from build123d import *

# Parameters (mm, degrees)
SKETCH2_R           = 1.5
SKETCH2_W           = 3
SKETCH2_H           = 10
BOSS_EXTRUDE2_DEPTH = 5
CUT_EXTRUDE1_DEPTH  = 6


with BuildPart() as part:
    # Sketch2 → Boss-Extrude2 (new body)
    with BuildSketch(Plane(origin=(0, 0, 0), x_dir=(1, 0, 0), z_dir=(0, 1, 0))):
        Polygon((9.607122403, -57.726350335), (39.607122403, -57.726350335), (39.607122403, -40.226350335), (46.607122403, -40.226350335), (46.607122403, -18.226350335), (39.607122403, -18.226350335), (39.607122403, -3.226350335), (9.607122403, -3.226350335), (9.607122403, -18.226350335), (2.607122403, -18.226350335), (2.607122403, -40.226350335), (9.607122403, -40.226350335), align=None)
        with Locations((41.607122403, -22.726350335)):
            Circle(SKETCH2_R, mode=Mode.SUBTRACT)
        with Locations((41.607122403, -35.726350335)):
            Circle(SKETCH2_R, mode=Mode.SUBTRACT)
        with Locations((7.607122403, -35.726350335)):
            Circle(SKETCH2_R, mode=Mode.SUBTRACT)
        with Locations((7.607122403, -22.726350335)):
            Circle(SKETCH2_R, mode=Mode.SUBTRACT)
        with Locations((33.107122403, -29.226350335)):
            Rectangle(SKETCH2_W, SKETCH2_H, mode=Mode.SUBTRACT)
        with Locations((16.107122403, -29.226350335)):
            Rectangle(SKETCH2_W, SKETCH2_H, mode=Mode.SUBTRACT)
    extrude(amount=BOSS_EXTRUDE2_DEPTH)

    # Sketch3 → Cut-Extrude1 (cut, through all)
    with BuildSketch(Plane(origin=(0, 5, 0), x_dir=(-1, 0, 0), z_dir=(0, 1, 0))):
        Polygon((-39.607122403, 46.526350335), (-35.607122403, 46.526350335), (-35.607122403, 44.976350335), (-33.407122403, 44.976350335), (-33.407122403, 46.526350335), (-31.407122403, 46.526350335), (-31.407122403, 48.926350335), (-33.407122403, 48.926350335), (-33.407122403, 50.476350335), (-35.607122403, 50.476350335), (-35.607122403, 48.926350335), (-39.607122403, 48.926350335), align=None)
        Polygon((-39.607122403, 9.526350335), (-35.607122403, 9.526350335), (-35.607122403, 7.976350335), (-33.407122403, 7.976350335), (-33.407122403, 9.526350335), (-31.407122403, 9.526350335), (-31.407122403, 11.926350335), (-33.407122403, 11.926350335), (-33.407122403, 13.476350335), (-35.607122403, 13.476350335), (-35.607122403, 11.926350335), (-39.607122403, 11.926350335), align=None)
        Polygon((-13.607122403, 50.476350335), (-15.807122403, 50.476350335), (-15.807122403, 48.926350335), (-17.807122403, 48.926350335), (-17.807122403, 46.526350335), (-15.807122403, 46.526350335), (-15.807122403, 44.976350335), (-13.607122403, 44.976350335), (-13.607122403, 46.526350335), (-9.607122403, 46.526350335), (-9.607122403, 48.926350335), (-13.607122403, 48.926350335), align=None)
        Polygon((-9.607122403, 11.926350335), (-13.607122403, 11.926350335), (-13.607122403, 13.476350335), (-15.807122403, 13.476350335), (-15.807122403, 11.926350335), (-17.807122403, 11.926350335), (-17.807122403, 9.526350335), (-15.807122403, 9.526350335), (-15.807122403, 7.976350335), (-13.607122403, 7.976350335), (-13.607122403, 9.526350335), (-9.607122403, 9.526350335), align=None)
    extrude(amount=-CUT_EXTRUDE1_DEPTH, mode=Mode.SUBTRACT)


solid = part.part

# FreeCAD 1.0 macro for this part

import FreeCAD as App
import Part
import Sketcher

V = App.Vector


def add_polygon(sketch, points):
    """Adds a closed chain of lines whose ends are joined by coincident constraints."""
    first, n = sketch.GeometryCount, len(points)
    for a, b in zip(points, points[1:] + points[:1]):
        sketch.addGeometry(Part.LineSegment(App.Vector(*a, 0), App.Vector(*b, 0)), False)
    for i in range(n):
        sketch.addConstraint(Sketcher.Constraint("Coincident", first + i, 2, first + (i + 1) % n, 1))

doc = App.newDocument("Part")
params = doc.addObject("Spreadsheet::Sheet", "Params")
for row, (alias, value) in enumerate([
    ("sketch1_diameter", "3 mm"),
    ("sketch1_width", "30 mm"),
    ("sketch1_width2", "7 mm"),
    ("sketch1_width3", "3 mm"),
    ("sketch1_height", "22 mm"),
    ("pad1_length", "5 mm"),
    ("sketch2_width", "4 mm"),
    ("sketch2_width2", "2 mm"),
    ("sketch2_width3", "2.2 mm"),
    ("sketch2_height", "2.4 mm"),
    ("sketch2_height2", "1.55 mm"),
], start=1):
    params.set(f"A{row}", alias)
    params.set(f"B{row}", "=" + value)
    params.setAlias(f"B{row}", alias)

body = doc.addObject("PartDesign::Body", "Body")

sketch1 = doc.addObject("Sketcher::SketchObject", "Sketch")
body.addObject(sketch1)
sketch1.AttachmentSupport = (doc.XZ_Plane, [""])
sketch1.MapMode = "FlatFace"
add_polygon(sketch1, [(9.607122, 57.72635), (39.607122, 57.72635), (39.607122, 40.22635), (46.607122, 40.22635), (46.607122, 18.22635), (39.607122, 18.22635), (39.607122, 3.22635), (9.607122, 3.22635), (9.607122, 18.22635), (2.607122, 18.22635), (2.607122, 40.22635), (9.607122, 40.22635)])
sketch1.addGeometry(Part.Circle(V(7.607122, 35.72635, 0), V(0, 0, 1), 1.5), False)
sketch1.addGeometry(Part.Circle(V(41.607122, 35.72635, 0), V(0, 0, 1), 1.5), False)
add_polygon(sketch1, [(17.607122, 34.22635), (14.607122, 34.22635), (14.607122, 24.22635), (17.607122, 24.22635)])
sketch1.addGeometry(Part.Circle(V(7.607122, 22.72635, 0), V(0, 0, 1), 1.5), False)
add_polygon(sketch1, [(34.607122, 34.22635), (31.607122, 34.22635), (31.607122, 24.22635), (34.607122, 24.22635)])
sketch1.addGeometry(Part.Circle(V(41.607122, 22.72635, 0), V(0, 0, 1), 1.5), False)
sketch1.addConstraint([
    Sketcher.Constraint("Horizontal", 0),
    Sketcher.Constraint("Vertical", 1),
    Sketcher.Constraint("Horizontal", 2),
    Sketcher.Constraint("Vertical", 3),
    Sketcher.Constraint("Horizontal", 4),
    Sketcher.Constraint("Vertical", 5),
    Sketcher.Constraint("Horizontal", 6),
    Sketcher.Constraint("Vertical", 7),
    Sketcher.Constraint("Horizontal", 8),
    Sketcher.Constraint("Vertical", 9),
    Sketcher.Constraint("Horizontal", 10),
    Sketcher.Constraint("Vertical", 11),
    Sketcher.Constraint("Horizontal", 14),
    Sketcher.Constraint("Vertical", 15),
    Sketcher.Constraint("Horizontal", 16),
    Sketcher.Constraint("Vertical", 17),
    Sketcher.Constraint("Horizontal", 19),
    Sketcher.Constraint("Vertical", 20),
    Sketcher.Constraint("Horizontal", 21),
    Sketcher.Constraint("Vertical", 22),
    Sketcher.Constraint("Equal", 12, 13),
    Sketcher.Constraint("Equal", 13, 18),
    Sketcher.Constraint("Equal", 18, 23),
    Sketcher.Constraint("Horizontal", 12, 3, 13, 3),
    Sketcher.Constraint("Horizontal", 18, 3, 23, 3),
    Sketcher.Constraint("Horizontal", 4, 2, 7, 2),
    Sketcher.Constraint("Horizontal", 2, 2, 9, 2),
    Sketcher.Constraint("Horizontal", 17, 2, 19, 2),
    Sketcher.Constraint("Horizontal", 16, 2, 20, 2),
    Sketcher.Constraint("Vertical", 12, 3, 18, 3),
    Sketcher.Constraint("Vertical", 13, 3, 23, 3),
    Sketcher.Constraint("Vertical", 1, 2, 4, 2),
    Sketcher.Constraint("Vertical", 7, 2, 10, 2),
    Sketcher.Constraint("Equal", 4, 8),
    Sketcher.Constraint("Equal", 16, 19),
    Sketcher.Constraint("Diameter", 12, 3.0),
    Sketcher.Constraint("DistanceX", 0, 1, 0, 2, 30.0),
    Sketcher.Constraint("DistanceX", 2, 1, 2, 2, 7.0),
    Sketcher.Constraint("DistanceX", 14, 2, 14, 1, 3.0),
    Sketcher.Constraint("DistanceY", 3, 2, 3, 1, 22.0),
    Sketcher.Constraint("DistanceY", 5, 2, 5, 1, 15.0),
    Sketcher.Constraint("DistanceY", 15, 2, 15, 1, 10.0),
    Sketcher.Constraint("DistanceY", 1, 2, 1, 1, 17.5),
    Sketcher.Constraint("DistanceX", 12, 3, 13, 3, 34.0),
    Sketcher.Constraint("DistanceY", 18, 3, 12, 3, 13.0),
    Sketcher.Constraint("DistanceX", 0, 2, 13, 3, 2.0),
    Sketcher.Constraint("DistanceY", 13, 3, 0, 2, 22.0),
    Sketcher.Constraint("DistanceX", 12, 3, 14, 2, 7.0),
    Sketcher.Constraint("DistanceY", 14, 2, 10, 2, 6.0),
    Sketcher.Constraint("DistanceX", 19, 2, 1, 2, 8.0),
    Sketcher.Constraint("DistanceY", -1, 1, 12, 3, 35.72635),
    Sketcher.Constraint("DistanceX", -1, 1, 12, 3, 7.607122),
])
sketch1.setExpression("Constraints[55]", "Params.sketch1_diameter")
sketch1.setExpression("Constraints[56]", "Params.sketch1_width")
sketch1.setExpression("Constraints[57]", "Params.sketch1_width2")
sketch1.setExpression("Constraints[58]", "Params.sketch1_width3")
sketch1.setExpression("Constraints[59]", "Params.sketch1_height")
pad1 = doc.addObject("PartDesign::Pad", "Pad")
body.addObject(pad1)
pad1.Profile = sketch1
pad1.setExpression("Length", "Params.pad1_length")
pad1.Reversed = True

sketch2 = doc.addObject("Sketcher::SketchObject", "Sketch001")
body.addObject(sketch2)
sketch2.AttachmentSupport = (doc.XZ_Plane, [""])
sketch2.MapMode = "FlatFace"
sketch2.AttachmentOffset = App.Placement(V(0, 0, -5), App.Rotation())
add_polygon(sketch2, [(39.607122, 46.52635), (35.607122, 46.52635), (35.607122, 44.97635), (33.407122, 44.97635), (33.407122, 46.52635), (31.407122, 46.52635), (31.407122, 48.92635), (33.407122, 48.92635), (33.407122, 50.47635), (35.607122, 50.47635), (35.607122, 48.92635), (39.607122, 48.92635)])
add_polygon(sketch2, [(39.607122, 9.52635), (35.607122, 9.52635), (35.607122, 7.97635), (33.407122, 7.97635), (33.407122, 9.52635), (31.407122, 9.52635), (31.407122, 11.92635), (33.407122, 11.92635), (33.407122, 13.47635), (35.607122, 13.47635), (35.607122, 11.92635), (39.607122, 11.92635)])
add_polygon(sketch2, [(13.607122, 50.47635), (15.807122, 50.47635), (15.807122, 48.92635), (17.807122, 48.92635), (17.807122, 46.52635), (15.807122, 46.52635), (15.807122, 44.97635), (13.607122, 44.97635), (13.607122, 46.52635), (9.607122, 46.52635), (9.607122, 48.92635), (13.607122, 48.92635)])
add_polygon(sketch2, [(9.607122, 11.92635), (13.607122, 11.92635), (13.607122, 13.47635), (15.807122, 13.47635), (15.807122, 11.92635), (17.807122, 11.92635), (17.807122, 9.52635), (15.807122, 9.52635), (15.807122, 7.97635), (13.607122, 7.97635), (13.607122, 9.52635), (9.607122, 9.52635)])
sketch2.addConstraint([
    Sketcher.Constraint("Horizontal", 0),
    Sketcher.Constraint("Vertical", 1),
    Sketcher.Constraint("Horizontal", 2),
    Sketcher.Constraint("Vertical", 3),
    Sketcher.Constraint("Horizontal", 4),
    Sketcher.Constraint("Vertical", 5),
    Sketcher.Constraint("Horizontal", 6),
    Sketcher.Constraint("Vertical", 7),
    Sketcher.Constraint("Horizontal", 8),
    Sketcher.Constraint("Vertical", 9),
    Sketcher.Constraint("Horizontal", 10),
    Sketcher.Constraint("Vertical", 11),
    Sketcher.Constraint("Horizontal", 12),
    Sketcher.Constraint("Vertical", 13),
    Sketcher.Constraint("Horizontal", 14),
    Sketcher.Constraint("Vertical", 15),
    Sketcher.Constraint("Horizontal", 16),
    Sketcher.Constraint("Vertical", 17),
    Sketcher.Constraint("Horizontal", 18),
    Sketcher.Constraint("Vertical", 19),
    Sketcher.Constraint("Horizontal", 20),
    Sketcher.Constraint("Vertical", 21),
    Sketcher.Constraint("Horizontal", 22),
    Sketcher.Constraint("Vertical", 23),
    Sketcher.Constraint("Horizontal", 24),
    Sketcher.Constraint("Vertical", 25),
    Sketcher.Constraint("Horizontal", 26),
    Sketcher.Constraint("Vertical", 27),
    Sketcher.Constraint("Horizontal", 28),
    Sketcher.Constraint("Vertical", 29),
    Sketcher.Constraint("Horizontal", 30),
    Sketcher.Constraint("Vertical", 31),
    Sketcher.Constraint("Horizontal", 32),
    Sketcher.Constraint("Vertical", 33),
    Sketcher.Constraint("Horizontal", 34),
    Sketcher.Constraint("Vertical", 35),
    Sketcher.Constraint("Horizontal", 36),
    Sketcher.Constraint("Vertical", 37),
    Sketcher.Constraint("Horizontal", 38),
    Sketcher.Constraint("Vertical", 39),
    Sketcher.Constraint("Horizontal", 40),
    Sketcher.Constraint("Vertical", 41),
    Sketcher.Constraint("Horizontal", 42),
    Sketcher.Constraint("Vertical", 43),
    Sketcher.Constraint("Horizontal", 44),
    Sketcher.Constraint("Vertical", 45),
    Sketcher.Constraint("Horizontal", 46),
    Sketcher.Constraint("Vertical", 47),
    Sketcher.Constraint("Horizontal", 0, 2, 3, 2),
    Sketcher.Constraint("Horizontal", 6, 2, 9, 2),
    Sketcher.Constraint("Horizontal", 12, 2, 15, 2),
    Sketcher.Constraint("Horizontal", 18, 2, 21, 2),
    Sketcher.Constraint("Horizontal", 8, 2, 24, 2),
    Sketcher.Constraint("Horizontal", 10, 2, 25, 2),
    Sketcher.Constraint("Horizontal", 11, 2, 27, 2),
    Sketcher.Constraint("Horizontal", 2, 2, 29, 2),
    Sketcher.Constraint("Horizontal", 28, 2, 31, 2),
    Sketcher.Constraint("Horizontal", 26, 2, 33, 2),
    Sketcher.Constraint("Horizontal", 22, 2, 36, 2),
    Sketcher.Constraint("Horizontal", 20, 2, 37, 2),
    Sketcher.Constraint("Horizontal", 36, 2, 39, 2),
    Sketcher.Constraint("Horizontal", 23, 2, 41, 2),
    Sketcher.Constraint("Horizontal", 14, 2, 43, 2),
    Sketcher.Constraint("Horizontal", 42, 2, 45, 2),
    Sketcher.Constraint("Vertical", 3, 2, 6, 2),
    Sketcher.Constraint("Vertical", 1, 2, 8, 2),
    Sketcher.Constraint("Vertical", 9, 2, 12, 2),
    Sketcher.Constraint("Vertical", 7, 2, 14, 2),
    Sketcher.Constraint("Vertical", 5, 2, 16, 2),
    Sketcher.Constraint("Vertical", 15, 2, 18, 2),
    Sketcher.Constraint("Vertical", 13, 2, 20, 2),
    Sketcher.Constraint("Vertical", 11, 2, 22, 2),
    Sketcher.Constraint("Vertical", 25, 2, 28, 2),
    Sketcher.Constraint("Vertical", 31, 2, 34, 2),
    Sketcher.Constraint("Vertical", 35, 2, 36, 2),
    Sketcher.Constraint("Vertical", 29, 2, 38, 2),
    Sketcher.Constraint("Vertical", 27, 2, 40, 2),
    Sketcher.Constraint("Vertical", 39, 2, 42, 2),
    Sketcher.Constraint("Vertical", 37, 2, 44, 2),
    Sketcher.Constraint("Vertical", 33, 2, 46, 2),
    Sketcher.Constraint("Equal", 20, 24),
    Sketcher.Constraint("Equal", 18, 26),
    Sketcher.Constraint("Equal", 22, 32),
    Sketcher.Constraint("Equal", 3, 7),
    Sketcher.Constraint("Equal", 9, 13),
    Sketcher.Constraint("Equal", 11, 17),
    Sketcher.Constraint("Equal", 15, 19),
    Sketcher.Constraint("DistanceX", 0, 2, 0, 1, 4.0),
    Sketcher.Constraint("DistanceX", 4, 2, 4, 1, 2.0),
    Sketcher.Constraint("DistanceX", 2, 2, 2, 1, 2.2),
    Sketcher.Constraint("DistanceY", 5, 1, 5, 2, 2.4),
    Sketcher.Constraint("DistanceY", 12, 2, 0, 2, 37.0),
    Sketcher.Constraint("DistanceY", 1, 2, 1, 1, 1.55),
    Sketcher.Constraint("DistanceX", 24, 2, 5, 2, 15.6),
    Sketcher.Constraint("DistanceY", -1, 1, 0, 2, 46.52635),
    Sketcher.Constraint("DistanceX", -1, 1, 0, 2, 35.607122),
])
sketch2.setExpression("Constraints[135]", "Params.sketch2_width")
sketch2.setExpression("Constraints[136]", "Params.sketch2_width2")
sketch2.setExpression("Constraints[137]", "Params.sketch2_width3")
sketch2.setExpression("Constraints[138]", "Params.sketch2_height")
sketch2.setExpression("Constraints[140]", "Params.sketch2_height2")
pocket1 = doc.addObject("PartDesign::Pocket", "Pocket")
body.addObject(pocket1)
pocket1.Profile = sketch2
pocket1.Type = "ThroughAll"
pocket1.Reversed = True

doc.recompute()
